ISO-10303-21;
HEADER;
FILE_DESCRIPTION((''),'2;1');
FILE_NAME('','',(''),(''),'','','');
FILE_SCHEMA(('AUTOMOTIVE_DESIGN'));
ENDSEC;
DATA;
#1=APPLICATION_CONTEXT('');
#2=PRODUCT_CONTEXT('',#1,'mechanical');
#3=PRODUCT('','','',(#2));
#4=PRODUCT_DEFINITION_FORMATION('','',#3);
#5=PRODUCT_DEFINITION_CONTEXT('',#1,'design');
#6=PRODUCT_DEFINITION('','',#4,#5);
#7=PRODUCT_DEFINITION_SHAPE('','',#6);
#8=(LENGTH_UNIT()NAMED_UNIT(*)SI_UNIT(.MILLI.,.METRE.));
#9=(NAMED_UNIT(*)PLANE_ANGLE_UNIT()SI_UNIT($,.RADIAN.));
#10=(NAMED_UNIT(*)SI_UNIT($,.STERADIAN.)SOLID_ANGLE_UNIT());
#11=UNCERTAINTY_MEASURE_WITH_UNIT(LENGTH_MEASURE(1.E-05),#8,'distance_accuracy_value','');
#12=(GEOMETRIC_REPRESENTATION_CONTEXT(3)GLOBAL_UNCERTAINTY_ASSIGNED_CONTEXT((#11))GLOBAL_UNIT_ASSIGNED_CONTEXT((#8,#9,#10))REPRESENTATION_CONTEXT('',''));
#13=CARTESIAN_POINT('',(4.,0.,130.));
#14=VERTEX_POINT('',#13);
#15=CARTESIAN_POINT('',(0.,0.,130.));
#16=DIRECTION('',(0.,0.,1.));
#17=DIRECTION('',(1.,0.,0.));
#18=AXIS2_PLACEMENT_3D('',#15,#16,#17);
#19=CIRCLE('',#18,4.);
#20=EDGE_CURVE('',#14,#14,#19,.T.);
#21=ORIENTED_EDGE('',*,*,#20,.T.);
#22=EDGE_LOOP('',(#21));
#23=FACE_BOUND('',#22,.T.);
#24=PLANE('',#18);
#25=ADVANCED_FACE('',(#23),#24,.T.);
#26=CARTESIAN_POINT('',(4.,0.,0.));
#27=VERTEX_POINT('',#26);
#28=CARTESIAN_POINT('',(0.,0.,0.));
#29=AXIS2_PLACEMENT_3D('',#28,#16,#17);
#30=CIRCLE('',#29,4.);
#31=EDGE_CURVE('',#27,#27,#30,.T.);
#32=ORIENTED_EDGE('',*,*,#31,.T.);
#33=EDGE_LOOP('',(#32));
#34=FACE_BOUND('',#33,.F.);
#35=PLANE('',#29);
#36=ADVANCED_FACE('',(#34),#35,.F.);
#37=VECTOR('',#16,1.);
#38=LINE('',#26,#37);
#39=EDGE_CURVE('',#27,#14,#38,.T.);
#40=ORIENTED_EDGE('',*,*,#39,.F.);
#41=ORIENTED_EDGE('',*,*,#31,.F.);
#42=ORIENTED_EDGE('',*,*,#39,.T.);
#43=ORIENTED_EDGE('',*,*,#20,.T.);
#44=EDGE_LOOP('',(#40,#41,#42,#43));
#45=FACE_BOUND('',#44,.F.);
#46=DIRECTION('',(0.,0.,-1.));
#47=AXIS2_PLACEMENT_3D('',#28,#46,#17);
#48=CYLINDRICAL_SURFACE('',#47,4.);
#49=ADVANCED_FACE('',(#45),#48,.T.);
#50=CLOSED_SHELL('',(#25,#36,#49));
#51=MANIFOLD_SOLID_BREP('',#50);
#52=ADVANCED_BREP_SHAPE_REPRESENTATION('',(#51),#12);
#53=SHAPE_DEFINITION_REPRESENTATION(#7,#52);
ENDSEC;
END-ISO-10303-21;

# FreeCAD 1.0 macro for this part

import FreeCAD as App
import Part
import Sketcher

doc = App.newDocument("Part")
body = doc.addObject("PartDesign::Body", "Body")

# Sketch on XY plane
sketch1 = body.newObject("Sketcher::SketchObject", "Sketch")
sketch1.AttachmentSupport = (doc.getObject("XY_Plane"), [""])
sketch1.MapMode = "FlatFace"
sketch1.addGeometry(Part.Circle(App.Vector(0, 0, 0), App.Vector(0, 0, 1), 4), False)
sketch1.addConstraint(Sketcher.Constraint("Coincident", 0, 3, -1, 1))
sketch1.addConstraint(Sketcher.Constraint("Diameter", 0, 8.0))
pad1 = body.newObject("PartDesign::Pad", "Pad")
pad1.Profile = sketch1
pad1.Length = 130

doc.recompute()
